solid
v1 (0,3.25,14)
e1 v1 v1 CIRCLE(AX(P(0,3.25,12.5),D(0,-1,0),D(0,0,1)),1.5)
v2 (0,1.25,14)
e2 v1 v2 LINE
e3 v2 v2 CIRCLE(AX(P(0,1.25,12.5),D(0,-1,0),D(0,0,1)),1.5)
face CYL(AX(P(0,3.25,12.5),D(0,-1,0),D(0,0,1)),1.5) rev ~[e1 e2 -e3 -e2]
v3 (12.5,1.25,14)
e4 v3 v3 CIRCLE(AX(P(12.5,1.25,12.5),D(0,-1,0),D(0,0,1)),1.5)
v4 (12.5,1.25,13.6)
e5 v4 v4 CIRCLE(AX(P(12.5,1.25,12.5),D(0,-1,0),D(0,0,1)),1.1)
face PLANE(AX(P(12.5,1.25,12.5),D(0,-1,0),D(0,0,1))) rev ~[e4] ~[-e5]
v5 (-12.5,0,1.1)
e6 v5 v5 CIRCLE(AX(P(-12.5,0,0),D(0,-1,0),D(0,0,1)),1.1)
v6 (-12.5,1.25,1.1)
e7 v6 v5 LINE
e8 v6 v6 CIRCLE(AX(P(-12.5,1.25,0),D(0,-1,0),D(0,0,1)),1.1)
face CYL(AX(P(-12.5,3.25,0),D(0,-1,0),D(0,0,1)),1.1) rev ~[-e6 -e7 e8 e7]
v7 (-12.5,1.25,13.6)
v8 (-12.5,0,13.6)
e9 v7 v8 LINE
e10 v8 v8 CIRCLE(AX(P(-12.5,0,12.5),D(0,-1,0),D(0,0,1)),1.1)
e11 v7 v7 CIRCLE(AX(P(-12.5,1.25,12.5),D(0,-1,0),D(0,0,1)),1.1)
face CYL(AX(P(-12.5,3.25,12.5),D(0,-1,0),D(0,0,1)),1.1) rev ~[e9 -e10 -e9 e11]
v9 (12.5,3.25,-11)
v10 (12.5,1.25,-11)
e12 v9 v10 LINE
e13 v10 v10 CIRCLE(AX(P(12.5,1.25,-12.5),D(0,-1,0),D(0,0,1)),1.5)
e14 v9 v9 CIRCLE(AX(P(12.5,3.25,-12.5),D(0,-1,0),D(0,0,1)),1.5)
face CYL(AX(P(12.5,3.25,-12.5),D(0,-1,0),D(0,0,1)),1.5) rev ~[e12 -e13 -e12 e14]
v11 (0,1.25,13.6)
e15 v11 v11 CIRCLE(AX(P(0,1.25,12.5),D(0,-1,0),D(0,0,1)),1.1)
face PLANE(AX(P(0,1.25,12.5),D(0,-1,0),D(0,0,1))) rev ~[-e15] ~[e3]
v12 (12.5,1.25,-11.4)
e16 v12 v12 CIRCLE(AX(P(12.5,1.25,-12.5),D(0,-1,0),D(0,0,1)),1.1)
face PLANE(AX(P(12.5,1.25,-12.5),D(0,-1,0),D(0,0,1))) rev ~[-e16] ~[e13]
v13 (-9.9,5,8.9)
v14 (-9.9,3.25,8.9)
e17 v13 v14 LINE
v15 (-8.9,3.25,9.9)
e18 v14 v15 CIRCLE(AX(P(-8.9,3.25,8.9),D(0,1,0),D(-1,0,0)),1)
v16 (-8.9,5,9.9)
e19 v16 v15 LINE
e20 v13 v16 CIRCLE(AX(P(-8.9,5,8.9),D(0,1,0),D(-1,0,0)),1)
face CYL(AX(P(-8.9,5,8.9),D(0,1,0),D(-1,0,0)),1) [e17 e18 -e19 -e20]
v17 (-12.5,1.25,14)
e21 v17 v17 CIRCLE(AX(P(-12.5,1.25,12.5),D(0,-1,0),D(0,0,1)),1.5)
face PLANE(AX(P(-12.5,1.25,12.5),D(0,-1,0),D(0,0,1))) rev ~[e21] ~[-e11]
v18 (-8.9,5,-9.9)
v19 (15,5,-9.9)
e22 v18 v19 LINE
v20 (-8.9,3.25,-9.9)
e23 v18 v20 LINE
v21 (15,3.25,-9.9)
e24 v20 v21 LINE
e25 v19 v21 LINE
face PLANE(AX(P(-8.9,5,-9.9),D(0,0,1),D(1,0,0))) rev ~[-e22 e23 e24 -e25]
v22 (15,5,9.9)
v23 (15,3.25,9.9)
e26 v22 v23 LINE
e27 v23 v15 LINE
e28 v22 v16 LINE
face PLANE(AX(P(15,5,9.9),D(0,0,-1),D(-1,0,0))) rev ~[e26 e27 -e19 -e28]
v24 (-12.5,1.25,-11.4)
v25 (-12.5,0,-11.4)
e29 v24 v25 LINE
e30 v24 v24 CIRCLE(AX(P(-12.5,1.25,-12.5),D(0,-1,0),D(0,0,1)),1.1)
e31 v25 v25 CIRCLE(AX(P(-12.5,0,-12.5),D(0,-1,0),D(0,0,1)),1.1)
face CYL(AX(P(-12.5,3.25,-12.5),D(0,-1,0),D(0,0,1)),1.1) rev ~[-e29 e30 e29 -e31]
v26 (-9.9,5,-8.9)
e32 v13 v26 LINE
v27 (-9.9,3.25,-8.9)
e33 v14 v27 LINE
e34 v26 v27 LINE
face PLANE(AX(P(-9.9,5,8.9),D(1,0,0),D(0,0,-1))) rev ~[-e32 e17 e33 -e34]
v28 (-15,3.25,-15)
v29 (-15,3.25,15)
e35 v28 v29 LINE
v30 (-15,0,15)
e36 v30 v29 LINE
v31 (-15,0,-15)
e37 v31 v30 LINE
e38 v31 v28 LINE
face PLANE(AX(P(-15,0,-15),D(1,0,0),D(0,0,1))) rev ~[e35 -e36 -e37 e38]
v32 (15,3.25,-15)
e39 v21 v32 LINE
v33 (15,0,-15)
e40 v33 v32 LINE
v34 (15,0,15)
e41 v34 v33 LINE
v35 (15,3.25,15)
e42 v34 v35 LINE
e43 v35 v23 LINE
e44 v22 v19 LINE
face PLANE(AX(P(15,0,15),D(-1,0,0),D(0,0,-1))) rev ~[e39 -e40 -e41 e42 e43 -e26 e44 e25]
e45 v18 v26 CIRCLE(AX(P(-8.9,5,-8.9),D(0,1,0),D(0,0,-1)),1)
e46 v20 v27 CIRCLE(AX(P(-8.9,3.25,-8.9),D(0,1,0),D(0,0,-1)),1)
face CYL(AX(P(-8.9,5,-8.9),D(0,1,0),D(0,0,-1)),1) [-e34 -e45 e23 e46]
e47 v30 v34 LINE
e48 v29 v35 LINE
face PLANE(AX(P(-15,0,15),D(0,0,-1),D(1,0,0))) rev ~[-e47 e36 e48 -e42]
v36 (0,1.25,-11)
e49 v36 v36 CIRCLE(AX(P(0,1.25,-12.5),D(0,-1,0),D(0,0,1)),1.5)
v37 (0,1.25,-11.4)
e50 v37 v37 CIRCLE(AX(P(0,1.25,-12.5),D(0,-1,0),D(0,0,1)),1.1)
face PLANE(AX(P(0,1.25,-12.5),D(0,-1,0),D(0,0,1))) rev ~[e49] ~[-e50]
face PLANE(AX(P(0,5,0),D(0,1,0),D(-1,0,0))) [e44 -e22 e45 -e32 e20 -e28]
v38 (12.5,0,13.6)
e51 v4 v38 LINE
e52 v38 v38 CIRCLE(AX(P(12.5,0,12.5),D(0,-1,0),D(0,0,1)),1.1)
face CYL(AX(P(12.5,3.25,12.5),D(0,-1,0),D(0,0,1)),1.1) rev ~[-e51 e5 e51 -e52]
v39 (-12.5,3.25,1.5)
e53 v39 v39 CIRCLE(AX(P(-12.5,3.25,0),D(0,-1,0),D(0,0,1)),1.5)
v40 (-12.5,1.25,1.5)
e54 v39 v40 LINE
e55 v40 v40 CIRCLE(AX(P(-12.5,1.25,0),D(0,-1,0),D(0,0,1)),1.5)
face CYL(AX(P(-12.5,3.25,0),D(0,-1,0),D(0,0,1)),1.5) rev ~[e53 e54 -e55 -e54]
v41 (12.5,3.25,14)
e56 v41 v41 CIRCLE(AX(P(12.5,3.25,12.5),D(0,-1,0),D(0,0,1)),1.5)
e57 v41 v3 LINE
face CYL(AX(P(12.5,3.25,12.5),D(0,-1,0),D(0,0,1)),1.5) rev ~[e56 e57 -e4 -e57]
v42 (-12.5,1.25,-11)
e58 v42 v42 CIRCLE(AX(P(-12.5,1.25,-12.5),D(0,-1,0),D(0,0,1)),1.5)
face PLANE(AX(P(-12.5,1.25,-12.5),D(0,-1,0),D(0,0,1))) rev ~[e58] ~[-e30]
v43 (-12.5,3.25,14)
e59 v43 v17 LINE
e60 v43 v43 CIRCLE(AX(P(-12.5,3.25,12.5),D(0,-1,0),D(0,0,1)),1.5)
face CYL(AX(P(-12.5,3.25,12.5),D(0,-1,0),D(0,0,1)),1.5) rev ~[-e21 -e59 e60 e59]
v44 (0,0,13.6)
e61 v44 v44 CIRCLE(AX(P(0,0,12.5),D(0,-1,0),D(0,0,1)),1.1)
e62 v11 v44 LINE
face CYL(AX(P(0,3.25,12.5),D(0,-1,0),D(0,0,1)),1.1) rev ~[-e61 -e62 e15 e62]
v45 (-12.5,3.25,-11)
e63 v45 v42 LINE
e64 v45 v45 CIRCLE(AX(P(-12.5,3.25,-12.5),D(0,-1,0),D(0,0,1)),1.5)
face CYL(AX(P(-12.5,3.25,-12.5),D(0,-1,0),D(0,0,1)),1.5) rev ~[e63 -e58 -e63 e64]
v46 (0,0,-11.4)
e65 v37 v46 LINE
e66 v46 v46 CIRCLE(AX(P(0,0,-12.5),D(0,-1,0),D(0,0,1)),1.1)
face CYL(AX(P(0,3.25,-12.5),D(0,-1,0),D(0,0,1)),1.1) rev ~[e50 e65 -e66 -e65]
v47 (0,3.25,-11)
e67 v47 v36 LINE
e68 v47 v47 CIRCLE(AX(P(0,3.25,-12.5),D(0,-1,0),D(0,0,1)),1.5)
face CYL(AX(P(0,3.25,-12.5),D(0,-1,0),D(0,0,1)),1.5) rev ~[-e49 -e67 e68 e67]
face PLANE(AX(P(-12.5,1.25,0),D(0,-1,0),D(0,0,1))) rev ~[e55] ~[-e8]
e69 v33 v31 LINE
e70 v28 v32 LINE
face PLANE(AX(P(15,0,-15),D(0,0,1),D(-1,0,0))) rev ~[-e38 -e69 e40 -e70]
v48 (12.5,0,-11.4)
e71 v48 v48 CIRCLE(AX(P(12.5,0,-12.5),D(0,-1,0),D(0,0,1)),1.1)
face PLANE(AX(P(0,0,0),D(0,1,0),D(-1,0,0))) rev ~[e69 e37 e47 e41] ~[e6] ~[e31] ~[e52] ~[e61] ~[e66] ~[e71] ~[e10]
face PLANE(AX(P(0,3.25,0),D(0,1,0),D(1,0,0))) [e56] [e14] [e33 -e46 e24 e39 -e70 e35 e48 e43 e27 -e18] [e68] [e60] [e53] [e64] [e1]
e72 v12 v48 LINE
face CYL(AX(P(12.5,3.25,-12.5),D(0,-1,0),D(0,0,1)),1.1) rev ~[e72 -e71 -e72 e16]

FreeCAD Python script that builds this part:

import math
import FreeCAD as App
import Part
import Sketcher


def add_polygon(sketch, points):
    """Adds a closed chain of lines whose ends are joined by coincident constraints."""
    first, n = sketch.GeometryCount, len(points)
    for a, b in zip(points, points[1:] + points[:1]):
        sketch.addGeometry(Part.LineSegment(App.Vector(*a, 0), App.Vector(*b, 0)), False)
    for i in range(n):
        sketch.addConstraint(Sketcher.Constraint("Coincident", first + i, 2, first + (i + 1) % n, 1))

doc = App.newDocument("Part")
body = doc.addObject("PartDesign::Body", "Body")

sketch1 = doc.addObject("Sketcher::SketchObject", "Sketch")
body.addObject(sketch1)
sketch1.AttachmentSupport = (doc.XZ_Plane, [""])
sketch1.MapMode = "FlatFace"
add_polygon(sketch1, [(15, 15), (15, -15), (-15, -15), (-15, 15)])
sketch1.addConstraint([
    Sketcher.Constraint("Vertical", 0),
    Sketcher.Constraint("Horizontal", 1),
    Sketcher.Constraint("Vertical", 2),
    Sketcher.Constraint("Horizontal", 3),
    Sketcher.Constraint("Symmetric", 0, 2, 2, 2, -1, 1),
    Sketcher.Constraint("Equal", 3, 0),
    Sketcher.Constraint("DistanceX", 1, 2, 1, 1, 30.0),
])
pad1 = doc.addObject("PartDesign::Pad", "Pad")
body.addObject(pad1)
pad1.Profile = sketch1
pad1.Length = 5
pad1.Reversed = True

sketch2 = doc.addObject("Sketcher::SketchObject", "Sketch001")
body.addObject(sketch2)
sketch2.AttachmentSupport = (doc.XZ_Plane, [""])
sketch2.MapMode = "FlatFace"
sketch2.AttachmentOffset = App.Placement(App.Vector(0, 0, -5), App.Rotation())
sketch2.addGeometry([
    Part.LineSegment(App.Vector(-15, -15, 0), App.Vector(-15, 15, 0)),
    Part.LineSegment(App.Vector(-15, 15, 0), App.Vector(15, 15, 0)),
    Part.LineSegment(App.Vector(15, 15, 0), App.Vector(15, 9.9, 0)),
    Part.LineSegment(App.Vector(15, 9.9, 0), App.Vector(-8.9, 9.9, 0)),
    Part.ArcOfCircle(Part.Circle(App.Vector(-8.9, 8.9, 0), App.Vector(0, 0, 1), 1), math.radians(90), math.radians(180)),
    Part.LineSegment(App.Vector(-9.9, 8.9, 0), App.Vector(-9.9, -8.9, 0)),
    Part.ArcOfCircle(Part.Circle(App.Vector(-8.9, -8.9, 0), App.Vector(0, 0, 1), 1), math.radians(180), math.radians(270)),
    Part.LineSegment(App.Vector(-8.9, -9.9, 0), App.Vector(15, -9.9, 0)),
    Part.LineSegment(App.Vector(15, -9.9, 0), App.Vector(15, -15, 0)),
    Part.LineSegment(App.Vector(15, -15, 0), App.Vector(-15, -15, 0)),
], False)
sketch2.addConstraint([
    Sketcher.Constraint("Coincident", 0, 2, 1, 1),
    Sketcher.Constraint("Coincident", 1, 2, 2, 1),
    Sketcher.Constraint("Coincident", 2, 2, 3, 1),
    Sketcher.Constraint("Tangent", 3, 2, 4, 1),
    Sketcher.Constraint("Tangent", 4, 2, 5, 1),
    Sketcher.Constraint("Tangent", 5, 2, 6, 1),
    Sketcher.Constraint("Tangent", 6, 2, 7, 1),
    Sketcher.Constraint("Coincident", 7, 2, 8, 1),
    Sketcher.Constraint("Coincident", 8, 2, 9, 1),
    Sketcher.Constraint("Coincident", 9, 2, 0, 1),
    Sketcher.Constraint("Vertical", 0),
    Sketcher.Constraint("Horizontal", 1),
    Sketcher.Constraint("Vertical", 2),
    Sketcher.Constraint("Horizontal", 3),
    Sketcher.Constraint("Vertical", 5),
    Sketcher.Constraint("Horizontal", 7),
    Sketcher.Constraint("Vertical", 8),
    Sketcher.Constraint("Horizontal", 9),
    Sketcher.Constraint("Equal", 4, 6),
    Sketcher.Constraint("Symmetric", 0, 2, 8, 2, -1, 1),
    Sketcher.Constraint("Symmetric", 2, 2, 7, 2, -1),
    Sketcher.Constraint("Equal", 9, 0),
    Sketcher.Constraint("Radius", 4, 1.0),
    Sketcher.Constraint("DistanceY", 2, 2, 2, 1, 5.1),
    Sketcher.Constraint("DistanceX", 0, 2, 4, 2, 5.1),
    Sketcher.Constraint("DistanceX", 1, 1, 1, 2, 30.0),
])
pocket1 = doc.addObject("PartDesign::Pocket", "Pocket")
body.addObject(pocket1)
pocket1.Profile = sketch2
pocket1.Length = 1.75
pocket1.Reversed = True

sketch3 = doc.addObject("Sketcher::SketchObject", "Sketch002")
body.addObject(sketch3)
sketch3.AttachmentSupport = (doc.XZ_Plane, [""])
sketch3.MapMode = "FlatFace"
sketch3.AttachmentOffset = App.Placement(App.Vector(0, 0, -3.25), App.Rotation())
sketch3.addGeometry([
    Part.Circle(App.Vector(-12.5, 12.5, 0), App.Vector(0, 0, 1), 1.5),
    Part.Circle(App.Vector(12.5, 12.5, 0), App.Vector(0, 0, 1), 1.5),
    Part.Circle(App.Vector(-12.5, -12.5, 0), App.Vector(0, 0, 1), 1.5),
    Part.Circle(App.Vector(12.5, -12.5, 0), App.Vector(0, 0, 1), 1.5),
    Part.Circle(App.Vector(0, 12.5, 0), App.Vector(0, 0, 1), 1.5),
    Part.Circle(App.Vector(0, -12.5, 0), App.Vector(0, 0, 1), 1.5),
    Part.Circle(App.Vector(-12.5, 0, 0), App.Vector(0, 0, 1), 1.5),
], False)
sketch3.addConstraint([
    Sketcher.Constraint("Equal", 0, 1),
    Sketcher.Constraint("Equal", 1, 2),
    Sketcher.Constraint("Equal", 2, 3),
    Sketcher.Constraint("Equal", 3, 4),
    Sketcher.Constraint("Equal", 4, 5),
    Sketcher.Constraint("Equal", 5, 6),
    Sketcher.Constraint("Symmetric", 1, 3, 2, 3, -1, 1),
    Sketcher.Constraint("Symmetric", 0, 3, 3, 3, -1, 1),
    Sketcher.Constraint("Symmetric", 4, 3, 5, 3, -1, 1),
    Sketcher.Constraint("Symmetric", 0, 3, 1, 3, -2),
    Sketcher.Constraint("PointOnObject", 4, 3, -2),
    Sketcher.Constraint("PointOnObject", 6, 3, -1),
    Sketcher.Constraint("Horizontal", 1, 3, 4, 3),
    Sketcher.Constraint("Vertical", 2, 3, 6, 3),
    Sketcher.Constraint("Diameter", 0, 3.0),
    Sketcher.Constraint("DistanceX", 0, 3, 1, 3, 25.0),
    Sketcher.Constraint("DistanceY", 2, 3, 0, 3, 25.0),
])
doc.recompute()
hole = doc.addObject("PartDesign::Hole", "Hole")
body.addObject(hole)
hole.Profile = sketch3
hole.ThreadType = "None"
hole.Diameter = 3
hole.DepthType = "Dimension"
hole.Depth = 2
hole.DrillPoint = "Flat"
hole.Reversed = True

sketch4 = doc.addObject("Sketcher::SketchObject", "Sketch003")
body.addObject(sketch4)
sketch4.AttachmentSupport = (doc.XZ_Plane, [""])
sketch4.MapMode = "FlatFace"
sketch4.AttachmentOffset = App.Placement(App.Vector(0, 0, -3.25), App.Rotation())
sketch4.addGeometry([
    Part.Circle(App.Vector(-12.5, 0, 0), App.Vector(0, 0, 1), 1.1),
    Part.Circle(App.Vector(-12.5, 12.5, 0), App.Vector(0, 0, 1), 1.1),
    Part.Circle(App.Vector(0, 12.5, 0), App.Vector(0, 0, 1), 1.1),
    Part.Circle(App.Vector(12.5, 12.5, 0), App.Vector(0, 0, 1), 1.1),
    Part.Circle(App.Vector(12.5, -12.5, 0), App.Vector(0, 0, 1), 1.1),
    Part.Circle(App.Vector(0, -12.5, 0), App.Vector(0, 0, 1), 1.1),
    Part.Circle(App.Vector(-12.5, -12.5, 0), App.Vector(0, 0, 1), 1.1),
], False)
sketch4.addConstraint([
    Sketcher.Constraint("Equal", 0, 1),
    Sketcher.Constraint("Equal", 1, 2),
    Sketcher.Constraint("Equal", 2, 3),
    Sketcher.Constraint("Equal", 3, 4),
    Sketcher.Constraint("Equal", 4, 5),
    Sketcher.Constraint("Equal", 5, 6),
    Sketcher.Constraint("Symmetric", 1, 3, 4, 3, -1, 1),
    Sketcher.Constraint("Symmetric", 2, 3, 5, 3, -1, 1),
    Sketcher.Constraint("Symmetric", 3, 3, 6, 3, -1, 1),
    Sketcher.Constraint("Symmetric", 1, 3, 3, 3, -2),
    Sketcher.Constraint("PointOnObject", 0, 3, -1),
    Sketcher.Constraint("PointOnObject", 2, 3, -2),
    Sketcher.Constraint("Horizontal", 1, 3, 2, 3),
    Sketcher.Constraint("Vertical", 0, 3, 1, 3),
    Sketcher.Constraint("Diameter", 0, 2.2),
    Sketcher.Constraint("DistanceX", 1, 3, 3, 3, 25.0),
    Sketcher.Constraint("DistanceY", 4, 3, 3, 3, 25.0),
])
doc.recompute()
hole2 = doc.addObject("PartDesign::Hole", "Hole001")
body.addObject(hole2)
hole2.Profile = sketch4
hole2.ThreadType = "None"
hole2.Diameter = 2.2
hole2.DepthType = "ThroughAll"
hole2.Reversed = True

doc.recompute()
